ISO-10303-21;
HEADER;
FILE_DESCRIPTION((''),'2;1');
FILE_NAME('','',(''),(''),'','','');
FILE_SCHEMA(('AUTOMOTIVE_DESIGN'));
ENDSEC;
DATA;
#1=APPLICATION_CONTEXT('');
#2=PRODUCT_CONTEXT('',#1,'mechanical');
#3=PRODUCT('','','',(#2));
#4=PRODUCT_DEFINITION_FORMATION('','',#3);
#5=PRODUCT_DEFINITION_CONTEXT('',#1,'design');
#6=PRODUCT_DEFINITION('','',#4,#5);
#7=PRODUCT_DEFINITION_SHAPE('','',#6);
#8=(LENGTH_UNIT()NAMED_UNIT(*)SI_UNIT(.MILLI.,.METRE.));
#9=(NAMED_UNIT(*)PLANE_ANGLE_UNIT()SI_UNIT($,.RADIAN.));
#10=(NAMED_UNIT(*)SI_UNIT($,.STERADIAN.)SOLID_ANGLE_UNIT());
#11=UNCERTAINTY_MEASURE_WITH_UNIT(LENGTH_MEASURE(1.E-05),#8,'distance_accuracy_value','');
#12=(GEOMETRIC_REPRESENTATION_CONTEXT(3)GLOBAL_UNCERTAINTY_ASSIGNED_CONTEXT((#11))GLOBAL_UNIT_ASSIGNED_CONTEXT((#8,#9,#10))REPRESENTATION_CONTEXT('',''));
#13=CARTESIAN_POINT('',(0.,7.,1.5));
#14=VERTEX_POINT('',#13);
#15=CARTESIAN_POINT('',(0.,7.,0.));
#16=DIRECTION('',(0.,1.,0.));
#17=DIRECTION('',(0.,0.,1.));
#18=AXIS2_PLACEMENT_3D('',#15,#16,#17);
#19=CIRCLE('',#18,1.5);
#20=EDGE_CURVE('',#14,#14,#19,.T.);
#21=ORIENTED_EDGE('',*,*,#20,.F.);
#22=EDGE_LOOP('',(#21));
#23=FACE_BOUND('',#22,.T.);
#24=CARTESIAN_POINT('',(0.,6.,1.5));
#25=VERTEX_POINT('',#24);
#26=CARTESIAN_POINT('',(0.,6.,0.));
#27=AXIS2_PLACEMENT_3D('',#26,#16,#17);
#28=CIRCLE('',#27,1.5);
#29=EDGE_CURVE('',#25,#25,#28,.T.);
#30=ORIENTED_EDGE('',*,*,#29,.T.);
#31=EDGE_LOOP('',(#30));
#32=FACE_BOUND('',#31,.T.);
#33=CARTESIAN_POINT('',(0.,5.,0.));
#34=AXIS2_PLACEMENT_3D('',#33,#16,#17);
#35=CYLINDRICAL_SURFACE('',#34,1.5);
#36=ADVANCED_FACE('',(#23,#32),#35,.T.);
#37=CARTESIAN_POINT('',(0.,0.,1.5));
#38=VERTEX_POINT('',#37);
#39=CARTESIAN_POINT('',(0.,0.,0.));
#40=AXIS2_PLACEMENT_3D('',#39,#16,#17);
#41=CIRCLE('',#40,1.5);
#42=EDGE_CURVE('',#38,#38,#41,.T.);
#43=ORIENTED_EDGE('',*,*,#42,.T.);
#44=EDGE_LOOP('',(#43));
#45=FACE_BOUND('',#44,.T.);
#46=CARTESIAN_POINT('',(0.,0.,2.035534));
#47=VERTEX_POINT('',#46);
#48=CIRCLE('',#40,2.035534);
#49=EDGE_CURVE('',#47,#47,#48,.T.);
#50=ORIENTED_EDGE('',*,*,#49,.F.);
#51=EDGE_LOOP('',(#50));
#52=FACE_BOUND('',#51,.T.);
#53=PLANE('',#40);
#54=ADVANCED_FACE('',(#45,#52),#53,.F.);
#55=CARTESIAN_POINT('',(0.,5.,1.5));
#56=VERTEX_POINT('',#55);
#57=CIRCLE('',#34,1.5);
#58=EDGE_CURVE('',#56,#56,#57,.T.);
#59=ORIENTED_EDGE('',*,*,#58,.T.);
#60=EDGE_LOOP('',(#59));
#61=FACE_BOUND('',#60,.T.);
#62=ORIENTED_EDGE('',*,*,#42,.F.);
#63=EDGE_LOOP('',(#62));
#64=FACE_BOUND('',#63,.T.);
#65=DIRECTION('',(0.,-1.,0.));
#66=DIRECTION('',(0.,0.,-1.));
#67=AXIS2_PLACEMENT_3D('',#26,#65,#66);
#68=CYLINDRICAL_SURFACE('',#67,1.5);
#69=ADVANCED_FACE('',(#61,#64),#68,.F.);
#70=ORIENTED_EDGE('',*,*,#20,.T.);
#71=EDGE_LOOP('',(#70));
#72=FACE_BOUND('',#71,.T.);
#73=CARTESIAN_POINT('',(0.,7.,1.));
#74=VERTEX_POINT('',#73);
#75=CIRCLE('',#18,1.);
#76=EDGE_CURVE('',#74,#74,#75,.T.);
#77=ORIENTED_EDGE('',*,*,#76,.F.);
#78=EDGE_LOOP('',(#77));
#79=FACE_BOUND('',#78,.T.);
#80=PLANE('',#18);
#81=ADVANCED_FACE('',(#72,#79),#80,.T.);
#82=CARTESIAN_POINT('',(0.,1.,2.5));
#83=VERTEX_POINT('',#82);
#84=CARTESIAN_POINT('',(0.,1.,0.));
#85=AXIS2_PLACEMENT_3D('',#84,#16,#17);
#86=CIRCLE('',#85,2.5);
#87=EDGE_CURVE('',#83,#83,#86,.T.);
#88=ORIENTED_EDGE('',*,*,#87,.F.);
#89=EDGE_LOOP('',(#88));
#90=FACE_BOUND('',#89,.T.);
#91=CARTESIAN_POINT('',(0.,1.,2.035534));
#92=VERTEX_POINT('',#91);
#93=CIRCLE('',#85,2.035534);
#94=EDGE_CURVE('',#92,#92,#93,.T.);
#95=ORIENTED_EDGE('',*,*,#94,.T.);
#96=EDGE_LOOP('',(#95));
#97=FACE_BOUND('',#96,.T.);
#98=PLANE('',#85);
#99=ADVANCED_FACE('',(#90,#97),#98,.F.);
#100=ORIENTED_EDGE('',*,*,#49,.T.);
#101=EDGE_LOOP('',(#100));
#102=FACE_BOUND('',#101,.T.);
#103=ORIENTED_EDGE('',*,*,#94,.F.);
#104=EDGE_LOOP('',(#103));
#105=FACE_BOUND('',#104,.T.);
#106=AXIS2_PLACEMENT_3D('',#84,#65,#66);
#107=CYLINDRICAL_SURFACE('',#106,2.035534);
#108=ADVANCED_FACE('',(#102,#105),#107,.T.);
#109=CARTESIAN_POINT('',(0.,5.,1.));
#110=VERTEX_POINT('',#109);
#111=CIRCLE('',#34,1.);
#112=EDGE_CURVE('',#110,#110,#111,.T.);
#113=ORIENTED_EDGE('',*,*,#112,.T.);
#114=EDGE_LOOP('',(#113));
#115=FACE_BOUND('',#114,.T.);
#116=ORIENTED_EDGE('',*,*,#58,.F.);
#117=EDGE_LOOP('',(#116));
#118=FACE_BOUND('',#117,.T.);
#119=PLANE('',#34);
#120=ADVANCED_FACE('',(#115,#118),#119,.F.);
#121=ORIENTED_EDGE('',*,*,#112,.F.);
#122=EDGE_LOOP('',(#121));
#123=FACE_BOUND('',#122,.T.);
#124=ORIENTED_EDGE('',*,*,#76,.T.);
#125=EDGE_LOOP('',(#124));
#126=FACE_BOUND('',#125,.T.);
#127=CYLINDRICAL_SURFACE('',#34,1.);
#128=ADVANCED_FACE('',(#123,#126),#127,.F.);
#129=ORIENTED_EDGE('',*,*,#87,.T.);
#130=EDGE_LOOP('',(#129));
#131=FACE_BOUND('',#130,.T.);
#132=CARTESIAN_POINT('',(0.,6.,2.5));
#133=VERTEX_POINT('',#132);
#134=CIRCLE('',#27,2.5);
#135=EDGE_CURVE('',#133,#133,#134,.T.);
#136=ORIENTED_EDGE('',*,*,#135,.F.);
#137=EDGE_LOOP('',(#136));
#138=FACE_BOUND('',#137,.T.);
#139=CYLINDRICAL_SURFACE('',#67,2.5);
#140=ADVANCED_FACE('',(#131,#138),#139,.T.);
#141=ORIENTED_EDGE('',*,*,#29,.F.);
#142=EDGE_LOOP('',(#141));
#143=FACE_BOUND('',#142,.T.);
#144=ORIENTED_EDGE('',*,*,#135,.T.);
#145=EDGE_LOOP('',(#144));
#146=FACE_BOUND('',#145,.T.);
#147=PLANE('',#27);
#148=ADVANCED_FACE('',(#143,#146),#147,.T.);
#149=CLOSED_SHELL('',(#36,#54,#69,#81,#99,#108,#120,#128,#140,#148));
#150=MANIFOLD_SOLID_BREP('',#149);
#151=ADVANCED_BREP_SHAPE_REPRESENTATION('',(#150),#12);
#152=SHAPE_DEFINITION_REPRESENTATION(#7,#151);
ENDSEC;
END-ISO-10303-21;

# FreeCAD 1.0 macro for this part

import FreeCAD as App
import Part
import Sketcher

V = App.Vector

doc = App.newDocument("Part")
body = doc.addObject("PartDesign::Body", "Body")

sketch1 = body.newObject("Sketcher::SketchObject", "Sketch")
sketch1.AttachmentSupport = (doc.getObject("XZ_Plane"), [""])
sketch1.MapMode = "FlatFace"
sketch1.addGeometry([
    Part.Circle(V(0, 0, 0), V(0, 0, 1), 2.5),
    Part.Circle(V(0, 0, 0), V(0, 0, 1), 1.5),
], False)
sketch1.addConstraint([
    Sketcher.Constraint("Coincident", 0, 3, -1, 1),
    Sketcher.Constraint("Coincident", 1, 3, -1, 1),
    Sketcher.Constraint("Diameter", 0, 5.0),
    Sketcher.Constraint("Diameter", 1, 3.0),
])
pad1 = body.newObject("PartDesign::Pad", "Pad")
pad1.Profile = sketch1
pad1.Length = 6
pad1.Reversed = True

sketch2 = body.newObject("Sketcher::SketchObject", "Sketch001")
sketch2.AttachmentSupport = (doc.getObject("XZ_Plane"), [""])
sketch2.MapMode = "FlatFace"
sketch2.addGeometry([
    Part.Circle(V(0, 0, 0), V(0, 0, 1), 2.5),
    Part.Circle(V(0, 0, 0), V(0, 0, 1), 2),
], False)
sketch2.addConstraint([
    Sketcher.Constraint("Coincident", 0, 3, -1, 1),
    Sketcher.Constraint("Coincident", 1, 3, -1, 1),
    Sketcher.Constraint("Diameter", 0, 5.0),
    Sketcher.Constraint("Diameter", 1, 4.071068),
])
pocket1 = body.newObject("PartDesign::Pocket", "Pocket")
pocket1.Profile = sketch2
pocket1.Length = 1

sketch3 = body.newObject("Sketcher::SketchObject", "Sketch002")
sketch3.AttachmentSupport = (doc.getObject("XZ_Plane"), [""])
sketch3.MapMode = "FlatFace"
sketch3.AttachmentOffset = App.Placement(V(0, 0, -6), App.Rotation())
sketch3.addGeometry([
    Part.Circle(V(0, 0, 0), V(0, 0, 1), 1.5),
    Part.Circle(V(0, 0, 0), V(0, 0, 1), 1),
], False)
sketch3.addConstraint([
    Sketcher.Constraint("Coincident", 0, 3, -1, 1),
    Sketcher.Constraint("Coincident", 1, 3, -1, 1),
    Sketcher.Constraint("Diameter", 0, 3.0),
    Sketcher.Constraint("Diameter", 1, 2.0),
])
pad2 = body.newObject("PartDesign::Pad", "Pad001")
pad2.Profile = sketch3
pad2.Type = "TwoLengths"
pad2.Length = 1
pad2.Length2 = 1
pad2.Reversed = True

doc.recompute()
